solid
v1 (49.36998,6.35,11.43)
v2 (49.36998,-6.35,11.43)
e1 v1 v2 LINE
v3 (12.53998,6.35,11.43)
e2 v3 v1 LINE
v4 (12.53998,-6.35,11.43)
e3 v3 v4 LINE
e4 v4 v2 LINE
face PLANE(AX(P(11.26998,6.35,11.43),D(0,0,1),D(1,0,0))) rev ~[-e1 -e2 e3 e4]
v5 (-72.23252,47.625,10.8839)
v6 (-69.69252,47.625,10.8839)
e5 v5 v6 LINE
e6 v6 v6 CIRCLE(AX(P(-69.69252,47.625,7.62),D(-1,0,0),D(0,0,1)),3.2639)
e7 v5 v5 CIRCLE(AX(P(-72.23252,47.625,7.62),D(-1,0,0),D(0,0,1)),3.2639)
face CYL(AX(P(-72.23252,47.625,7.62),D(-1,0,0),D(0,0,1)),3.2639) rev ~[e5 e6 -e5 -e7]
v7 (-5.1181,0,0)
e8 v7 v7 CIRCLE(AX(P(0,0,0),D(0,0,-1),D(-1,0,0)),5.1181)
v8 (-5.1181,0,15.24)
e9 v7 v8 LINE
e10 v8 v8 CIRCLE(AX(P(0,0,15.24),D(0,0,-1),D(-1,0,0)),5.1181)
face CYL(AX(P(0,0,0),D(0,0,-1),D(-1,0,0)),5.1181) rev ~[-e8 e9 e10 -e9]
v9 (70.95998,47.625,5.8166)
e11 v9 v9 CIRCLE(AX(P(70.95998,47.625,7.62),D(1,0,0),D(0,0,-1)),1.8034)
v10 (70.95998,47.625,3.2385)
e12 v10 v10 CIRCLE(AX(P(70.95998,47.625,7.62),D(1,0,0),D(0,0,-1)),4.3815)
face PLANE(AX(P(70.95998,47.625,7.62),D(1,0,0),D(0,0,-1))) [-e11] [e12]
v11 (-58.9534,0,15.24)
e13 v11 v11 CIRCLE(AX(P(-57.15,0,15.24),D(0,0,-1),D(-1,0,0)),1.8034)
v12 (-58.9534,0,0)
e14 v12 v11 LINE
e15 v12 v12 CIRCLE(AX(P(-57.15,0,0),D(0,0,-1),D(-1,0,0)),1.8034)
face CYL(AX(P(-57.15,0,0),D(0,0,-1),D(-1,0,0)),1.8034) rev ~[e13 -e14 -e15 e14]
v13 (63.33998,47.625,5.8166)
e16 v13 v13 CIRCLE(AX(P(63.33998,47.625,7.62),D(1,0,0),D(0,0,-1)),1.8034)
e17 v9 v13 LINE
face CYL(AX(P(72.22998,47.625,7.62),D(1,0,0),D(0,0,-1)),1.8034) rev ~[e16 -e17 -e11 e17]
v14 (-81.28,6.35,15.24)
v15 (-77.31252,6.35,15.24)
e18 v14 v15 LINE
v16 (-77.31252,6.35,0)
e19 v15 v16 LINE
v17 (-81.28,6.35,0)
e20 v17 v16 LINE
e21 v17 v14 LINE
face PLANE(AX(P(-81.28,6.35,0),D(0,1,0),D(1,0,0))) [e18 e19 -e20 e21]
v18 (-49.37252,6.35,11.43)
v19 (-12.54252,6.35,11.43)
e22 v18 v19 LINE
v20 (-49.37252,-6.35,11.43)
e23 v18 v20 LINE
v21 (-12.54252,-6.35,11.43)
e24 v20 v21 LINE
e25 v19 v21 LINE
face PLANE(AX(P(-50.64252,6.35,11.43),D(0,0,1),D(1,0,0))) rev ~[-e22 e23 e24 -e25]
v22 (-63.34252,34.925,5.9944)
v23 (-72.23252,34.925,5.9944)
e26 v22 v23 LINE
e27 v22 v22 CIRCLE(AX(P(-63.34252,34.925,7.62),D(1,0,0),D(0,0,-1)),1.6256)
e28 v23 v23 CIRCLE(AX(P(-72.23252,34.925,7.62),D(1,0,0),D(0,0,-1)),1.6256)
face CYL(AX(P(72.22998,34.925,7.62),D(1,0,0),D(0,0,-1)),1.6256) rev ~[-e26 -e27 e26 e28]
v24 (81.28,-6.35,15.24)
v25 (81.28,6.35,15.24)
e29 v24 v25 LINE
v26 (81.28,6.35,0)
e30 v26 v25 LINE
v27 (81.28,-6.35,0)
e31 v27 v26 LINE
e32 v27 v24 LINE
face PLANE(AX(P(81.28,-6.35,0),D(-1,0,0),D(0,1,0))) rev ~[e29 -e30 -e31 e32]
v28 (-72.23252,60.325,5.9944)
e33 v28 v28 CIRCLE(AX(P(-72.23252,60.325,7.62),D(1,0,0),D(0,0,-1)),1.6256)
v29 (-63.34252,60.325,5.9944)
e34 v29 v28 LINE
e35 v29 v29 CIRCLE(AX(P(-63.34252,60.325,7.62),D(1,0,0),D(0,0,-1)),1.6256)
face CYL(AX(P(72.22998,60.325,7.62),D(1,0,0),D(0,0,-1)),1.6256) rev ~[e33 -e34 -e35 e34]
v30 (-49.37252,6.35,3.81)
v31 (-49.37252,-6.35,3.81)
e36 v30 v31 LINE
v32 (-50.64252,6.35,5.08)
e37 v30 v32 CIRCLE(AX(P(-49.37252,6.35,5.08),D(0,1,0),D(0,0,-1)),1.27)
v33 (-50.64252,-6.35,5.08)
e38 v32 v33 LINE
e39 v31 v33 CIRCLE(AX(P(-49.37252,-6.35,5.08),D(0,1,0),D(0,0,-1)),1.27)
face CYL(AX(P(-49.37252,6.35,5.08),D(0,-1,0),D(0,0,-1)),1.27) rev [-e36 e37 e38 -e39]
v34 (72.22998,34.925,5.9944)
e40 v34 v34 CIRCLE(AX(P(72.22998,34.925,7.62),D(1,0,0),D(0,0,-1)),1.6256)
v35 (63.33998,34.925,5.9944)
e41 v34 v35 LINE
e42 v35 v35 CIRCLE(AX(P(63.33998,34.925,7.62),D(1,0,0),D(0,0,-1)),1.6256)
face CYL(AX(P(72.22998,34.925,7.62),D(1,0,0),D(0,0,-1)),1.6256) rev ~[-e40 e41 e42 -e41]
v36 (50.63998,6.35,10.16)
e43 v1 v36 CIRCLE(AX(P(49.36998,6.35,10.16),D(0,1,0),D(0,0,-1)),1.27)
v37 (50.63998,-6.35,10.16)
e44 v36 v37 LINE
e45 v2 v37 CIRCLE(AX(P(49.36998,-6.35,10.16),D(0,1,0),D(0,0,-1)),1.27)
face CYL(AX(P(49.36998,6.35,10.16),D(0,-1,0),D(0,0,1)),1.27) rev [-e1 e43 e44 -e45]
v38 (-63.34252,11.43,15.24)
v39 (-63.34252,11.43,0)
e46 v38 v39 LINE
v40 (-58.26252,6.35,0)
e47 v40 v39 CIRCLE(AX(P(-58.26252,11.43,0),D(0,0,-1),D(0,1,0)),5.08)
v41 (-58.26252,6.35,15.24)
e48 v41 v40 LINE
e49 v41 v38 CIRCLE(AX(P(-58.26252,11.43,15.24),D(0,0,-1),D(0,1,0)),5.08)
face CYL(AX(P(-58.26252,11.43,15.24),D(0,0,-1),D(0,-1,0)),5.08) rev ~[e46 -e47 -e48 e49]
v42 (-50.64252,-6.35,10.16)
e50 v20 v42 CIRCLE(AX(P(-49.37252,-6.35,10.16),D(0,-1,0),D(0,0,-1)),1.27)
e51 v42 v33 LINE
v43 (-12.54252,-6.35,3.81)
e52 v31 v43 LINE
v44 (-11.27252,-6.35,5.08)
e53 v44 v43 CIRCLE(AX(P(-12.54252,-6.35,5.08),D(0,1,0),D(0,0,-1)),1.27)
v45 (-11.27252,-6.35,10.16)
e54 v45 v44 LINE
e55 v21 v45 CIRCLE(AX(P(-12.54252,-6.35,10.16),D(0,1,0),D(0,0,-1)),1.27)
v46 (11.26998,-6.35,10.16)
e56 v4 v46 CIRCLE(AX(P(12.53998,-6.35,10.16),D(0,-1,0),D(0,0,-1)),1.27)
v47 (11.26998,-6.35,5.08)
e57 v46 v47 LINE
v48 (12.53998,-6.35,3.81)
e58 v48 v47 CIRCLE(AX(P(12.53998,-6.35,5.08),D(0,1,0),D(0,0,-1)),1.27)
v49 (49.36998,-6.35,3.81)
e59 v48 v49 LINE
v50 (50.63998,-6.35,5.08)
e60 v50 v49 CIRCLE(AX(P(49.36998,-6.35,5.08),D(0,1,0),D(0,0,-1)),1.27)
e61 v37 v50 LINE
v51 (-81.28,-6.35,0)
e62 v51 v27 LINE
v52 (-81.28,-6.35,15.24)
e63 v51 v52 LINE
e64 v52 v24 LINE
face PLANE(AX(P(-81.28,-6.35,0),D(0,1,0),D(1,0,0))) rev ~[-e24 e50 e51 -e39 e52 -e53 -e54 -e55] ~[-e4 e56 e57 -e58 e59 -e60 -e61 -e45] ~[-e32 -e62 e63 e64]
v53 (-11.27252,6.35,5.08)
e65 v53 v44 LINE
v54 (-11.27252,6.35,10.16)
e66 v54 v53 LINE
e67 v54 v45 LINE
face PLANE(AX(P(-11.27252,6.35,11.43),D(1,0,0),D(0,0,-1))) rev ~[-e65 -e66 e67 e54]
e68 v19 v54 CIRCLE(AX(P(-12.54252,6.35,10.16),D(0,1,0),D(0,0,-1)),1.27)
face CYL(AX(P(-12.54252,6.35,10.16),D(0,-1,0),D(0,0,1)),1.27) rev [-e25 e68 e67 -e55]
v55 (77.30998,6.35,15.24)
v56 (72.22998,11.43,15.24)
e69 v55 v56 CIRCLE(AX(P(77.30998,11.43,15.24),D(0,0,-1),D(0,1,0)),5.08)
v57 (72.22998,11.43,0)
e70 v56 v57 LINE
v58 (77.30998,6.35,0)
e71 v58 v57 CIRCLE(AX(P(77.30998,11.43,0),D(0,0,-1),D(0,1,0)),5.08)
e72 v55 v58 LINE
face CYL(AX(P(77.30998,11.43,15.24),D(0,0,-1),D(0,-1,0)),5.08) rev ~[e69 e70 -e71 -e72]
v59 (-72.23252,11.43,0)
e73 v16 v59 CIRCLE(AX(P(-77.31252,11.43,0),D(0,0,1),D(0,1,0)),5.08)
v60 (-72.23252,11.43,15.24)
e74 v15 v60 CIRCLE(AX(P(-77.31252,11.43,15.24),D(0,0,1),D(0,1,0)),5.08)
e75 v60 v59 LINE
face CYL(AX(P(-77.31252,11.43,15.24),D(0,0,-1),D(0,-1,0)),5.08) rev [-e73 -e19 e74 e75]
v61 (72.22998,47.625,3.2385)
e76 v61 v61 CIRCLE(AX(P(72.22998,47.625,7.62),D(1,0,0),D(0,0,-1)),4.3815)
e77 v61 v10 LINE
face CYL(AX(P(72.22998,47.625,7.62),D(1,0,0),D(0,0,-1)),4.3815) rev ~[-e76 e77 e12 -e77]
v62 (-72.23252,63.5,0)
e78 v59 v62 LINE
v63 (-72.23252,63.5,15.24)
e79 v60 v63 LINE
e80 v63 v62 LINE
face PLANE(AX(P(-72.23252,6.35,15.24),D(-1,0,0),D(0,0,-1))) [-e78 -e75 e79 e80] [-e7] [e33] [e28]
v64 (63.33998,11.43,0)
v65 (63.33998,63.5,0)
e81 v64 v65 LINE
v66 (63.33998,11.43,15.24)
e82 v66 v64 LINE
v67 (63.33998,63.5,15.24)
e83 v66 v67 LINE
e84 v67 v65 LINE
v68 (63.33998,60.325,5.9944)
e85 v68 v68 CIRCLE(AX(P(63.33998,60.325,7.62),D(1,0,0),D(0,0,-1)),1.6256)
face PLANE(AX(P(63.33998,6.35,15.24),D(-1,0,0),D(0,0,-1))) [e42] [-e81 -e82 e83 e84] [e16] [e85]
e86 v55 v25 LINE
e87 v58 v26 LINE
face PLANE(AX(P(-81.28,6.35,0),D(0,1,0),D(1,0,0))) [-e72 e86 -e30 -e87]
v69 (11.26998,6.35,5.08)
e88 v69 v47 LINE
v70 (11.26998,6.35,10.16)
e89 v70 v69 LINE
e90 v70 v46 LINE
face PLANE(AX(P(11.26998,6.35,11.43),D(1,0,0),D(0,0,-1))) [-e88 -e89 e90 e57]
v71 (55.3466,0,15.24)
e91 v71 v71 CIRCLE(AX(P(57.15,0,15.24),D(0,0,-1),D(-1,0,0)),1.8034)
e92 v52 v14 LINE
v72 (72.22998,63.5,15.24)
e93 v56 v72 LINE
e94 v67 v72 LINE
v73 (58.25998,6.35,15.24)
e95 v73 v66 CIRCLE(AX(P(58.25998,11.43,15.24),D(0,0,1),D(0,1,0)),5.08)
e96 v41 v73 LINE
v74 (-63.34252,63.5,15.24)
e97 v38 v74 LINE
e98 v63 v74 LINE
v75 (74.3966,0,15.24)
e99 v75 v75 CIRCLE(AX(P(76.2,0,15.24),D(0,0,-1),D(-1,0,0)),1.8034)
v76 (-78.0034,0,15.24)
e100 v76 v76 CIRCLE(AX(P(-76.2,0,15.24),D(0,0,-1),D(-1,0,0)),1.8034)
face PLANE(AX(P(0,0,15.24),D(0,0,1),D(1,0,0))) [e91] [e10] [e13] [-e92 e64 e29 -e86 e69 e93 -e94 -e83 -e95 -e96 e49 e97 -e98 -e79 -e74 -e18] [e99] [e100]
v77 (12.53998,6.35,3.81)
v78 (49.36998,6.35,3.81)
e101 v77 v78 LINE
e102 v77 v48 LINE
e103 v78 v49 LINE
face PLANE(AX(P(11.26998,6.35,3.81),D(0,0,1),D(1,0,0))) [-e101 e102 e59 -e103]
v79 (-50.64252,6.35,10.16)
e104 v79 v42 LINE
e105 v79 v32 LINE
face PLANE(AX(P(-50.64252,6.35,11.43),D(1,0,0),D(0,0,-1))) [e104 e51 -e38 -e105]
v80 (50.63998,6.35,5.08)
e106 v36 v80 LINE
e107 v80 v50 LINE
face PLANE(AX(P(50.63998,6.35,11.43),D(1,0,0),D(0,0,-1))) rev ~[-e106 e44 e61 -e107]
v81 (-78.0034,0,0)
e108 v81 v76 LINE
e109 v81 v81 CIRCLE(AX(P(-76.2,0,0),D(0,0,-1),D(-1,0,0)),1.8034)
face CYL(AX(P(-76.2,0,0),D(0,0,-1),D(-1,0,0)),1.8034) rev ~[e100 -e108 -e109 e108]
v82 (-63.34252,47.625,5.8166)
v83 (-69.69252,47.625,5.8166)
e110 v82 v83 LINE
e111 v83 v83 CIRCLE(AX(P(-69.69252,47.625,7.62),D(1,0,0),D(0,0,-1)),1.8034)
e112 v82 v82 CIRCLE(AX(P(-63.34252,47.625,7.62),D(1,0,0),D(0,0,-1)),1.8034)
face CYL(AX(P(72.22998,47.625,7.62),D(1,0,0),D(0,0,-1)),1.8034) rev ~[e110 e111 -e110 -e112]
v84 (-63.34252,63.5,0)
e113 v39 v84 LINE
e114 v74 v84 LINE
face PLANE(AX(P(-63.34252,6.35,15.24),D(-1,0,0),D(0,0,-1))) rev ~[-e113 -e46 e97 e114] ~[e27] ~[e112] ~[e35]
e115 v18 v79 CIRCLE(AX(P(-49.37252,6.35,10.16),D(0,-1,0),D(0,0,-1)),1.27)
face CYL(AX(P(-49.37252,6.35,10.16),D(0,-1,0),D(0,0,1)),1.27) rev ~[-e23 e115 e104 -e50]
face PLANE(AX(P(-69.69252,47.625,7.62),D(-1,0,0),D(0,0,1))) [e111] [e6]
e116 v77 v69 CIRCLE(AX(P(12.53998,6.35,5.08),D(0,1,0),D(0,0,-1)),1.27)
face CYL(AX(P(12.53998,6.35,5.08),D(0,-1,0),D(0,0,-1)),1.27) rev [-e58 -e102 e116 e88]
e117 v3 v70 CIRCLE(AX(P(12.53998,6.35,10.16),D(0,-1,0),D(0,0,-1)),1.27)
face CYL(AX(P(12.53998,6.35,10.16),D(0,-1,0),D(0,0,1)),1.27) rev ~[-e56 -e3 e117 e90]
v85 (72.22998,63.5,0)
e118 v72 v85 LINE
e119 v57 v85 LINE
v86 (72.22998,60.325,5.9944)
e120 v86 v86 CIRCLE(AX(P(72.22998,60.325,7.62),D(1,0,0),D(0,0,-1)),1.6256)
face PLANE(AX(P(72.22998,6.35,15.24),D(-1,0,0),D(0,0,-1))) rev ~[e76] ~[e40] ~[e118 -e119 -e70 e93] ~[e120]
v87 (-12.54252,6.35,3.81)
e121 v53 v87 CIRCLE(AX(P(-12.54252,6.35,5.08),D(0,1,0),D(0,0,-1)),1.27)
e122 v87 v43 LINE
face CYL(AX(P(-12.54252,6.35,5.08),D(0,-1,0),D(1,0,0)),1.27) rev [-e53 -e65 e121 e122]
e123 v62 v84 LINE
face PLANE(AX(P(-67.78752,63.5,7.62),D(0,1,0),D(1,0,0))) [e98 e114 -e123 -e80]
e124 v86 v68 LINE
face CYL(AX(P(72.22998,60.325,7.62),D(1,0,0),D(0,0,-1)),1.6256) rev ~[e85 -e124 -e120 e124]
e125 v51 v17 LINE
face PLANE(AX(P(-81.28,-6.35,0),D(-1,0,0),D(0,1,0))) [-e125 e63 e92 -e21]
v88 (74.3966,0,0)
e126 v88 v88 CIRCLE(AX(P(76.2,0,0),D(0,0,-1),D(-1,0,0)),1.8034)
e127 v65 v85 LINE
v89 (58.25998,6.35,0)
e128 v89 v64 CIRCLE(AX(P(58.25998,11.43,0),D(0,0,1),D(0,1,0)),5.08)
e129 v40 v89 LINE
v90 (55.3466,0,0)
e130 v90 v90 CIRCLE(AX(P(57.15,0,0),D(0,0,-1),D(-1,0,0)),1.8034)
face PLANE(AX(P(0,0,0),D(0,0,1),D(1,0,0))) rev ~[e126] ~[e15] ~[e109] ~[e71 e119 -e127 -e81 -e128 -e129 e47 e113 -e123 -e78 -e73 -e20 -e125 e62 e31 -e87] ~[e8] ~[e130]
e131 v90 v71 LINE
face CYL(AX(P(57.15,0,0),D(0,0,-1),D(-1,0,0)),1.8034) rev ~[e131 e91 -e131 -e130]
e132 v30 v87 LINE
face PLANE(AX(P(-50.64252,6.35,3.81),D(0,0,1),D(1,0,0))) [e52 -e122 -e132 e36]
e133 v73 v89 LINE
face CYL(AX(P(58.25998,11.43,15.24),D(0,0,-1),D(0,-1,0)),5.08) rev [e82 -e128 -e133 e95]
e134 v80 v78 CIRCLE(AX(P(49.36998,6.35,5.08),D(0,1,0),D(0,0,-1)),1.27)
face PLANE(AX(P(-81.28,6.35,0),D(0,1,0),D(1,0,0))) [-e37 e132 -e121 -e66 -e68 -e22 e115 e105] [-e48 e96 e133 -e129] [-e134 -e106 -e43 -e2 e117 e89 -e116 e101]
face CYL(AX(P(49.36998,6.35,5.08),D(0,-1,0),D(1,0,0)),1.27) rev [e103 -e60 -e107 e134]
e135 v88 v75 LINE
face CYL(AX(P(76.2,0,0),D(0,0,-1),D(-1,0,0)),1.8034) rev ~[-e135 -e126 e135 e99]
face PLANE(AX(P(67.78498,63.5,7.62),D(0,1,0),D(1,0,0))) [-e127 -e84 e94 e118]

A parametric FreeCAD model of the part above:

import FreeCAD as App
import Part
import Sketcher
from FreeCAD import Vector
Q = App.Units.Quantity


def edges_at(feature, points):
    """Names of the edges that pass closest to the given points."""
    edges = feature.Shape.Edges
    near = lambda p: min(range(len(edges)), key=lambda i: edges[i].distToShape(Part.Vertex(*p))[0])
    return sorted({f"Edge{near(p) + 1}" for p in points})


def add_polygon(sketch, points):
    """Adds a closed chain of lines whose ends are joined by coincident constraints."""
    first, n = sketch.GeometryCount, len(points)
    for a, b in zip(points, points[1:] + points[:1]):
        sketch.addGeometry(Part.LineSegment(App.Vector(*a, 0), App.Vector(*b, 0)), False)
    for i in range(n):
        sketch.addConstraint(Sketcher.Constraint("Coincident", first + i, 2, first + (i + 1) % n, 1))

doc = App.newDocument("Part")
body = doc.addObject("PartDesign::Body", "Body")

# Sketch on XY plane
sketch1 = body.newObject("Sketcher::SketchObject", "Sketch")
sketch1.AttachmentSupport = (doc.getObject("XY_Plane"), [""])
sketch1.MapMode = "FlatFace"
add_polygon(sketch1, [(-81, 6), (-81, -6), (81, -6), (81, 6)])  # lines 0-3
sketch1.addConstraint([
    Sketcher.Constraint("Vertical", 0),
    Sketcher.Constraint("Horizontal", 1),
    Sketcher.Constraint("Vertical", 2),
    Sketcher.Constraint("Horizontal", 3),
    Sketcher.Constraint("Symmetric", 0, 2, 2, 2, -1, 1),
    Sketcher.Constraint("DistanceX", 1, 1, 1, 2, Q("6.4 in")),
    Sketcher.Constraint("DistanceY", 0, 2, 0, 1, Q("0.5 in")),
])
pad1 = body.newObject("PartDesign::Pad", "Pad")
pad1.Profile = sketch1
pad1.Length = Q("0.6 in")

# Sketch on XY plane
sketch2 = body.newObject("Sketcher::SketchObject", "Sketch001")
sketch2.AttachmentSupport = (doc.getObject("XY_Plane"), [""])
sketch2.MapMode = "FlatFace"
sketch2.addGeometry([
    Part.Circle(Vector(76.2, 0, 0), Vector(0, 0, 1), 1.8),
    Part.Circle(Vector(57.1, 0, 0), Vector(0, 0, 1), 1.8),
    Part.Circle(Vector(-57.1, 0, 0), Vector(0, 0, 1), 1.8),
    Part.Circle(Vector(-76.2, 0, 0), Vector(0, 0, 1), 1.8),
], False)
sketch2.addConstraint([
    Sketcher.Constraint("Equal", 0, 1),
    Sketcher.Constraint("Equal", 1, 2),
    Sketcher.Constraint("Equal", 2, 3),
    Sketcher.Constraint("Symmetric", 1, 3, 2, 3, -1, 1),
    Sketcher.Constraint("Symmetric", 0, 3, 3, 3, -1, 1),
    Sketcher.Constraint("PointOnObject", 0, 3, -1),
    Sketcher.Constraint("PointOnObject", 1, 3, -1),
    Sketcher.Constraint("Diameter", 0, Q("0.142 in")),
    Sketcher.Constraint("DistanceX", -1, 1, 0, 3, Q("3 in")),
    Sketcher.Constraint("DistanceX", 2, 3, 1, 3, Q("4.5 in")),
])
pocket1 = body.newObject("PartDesign::Pocket", "Pocket")
pocket1.Profile = sketch2
pocket1.Length = Q("0.6 in")
pocket1.Reversed = True

# Sketch on XY plane
sketch3 = body.newObject("Sketcher::SketchObject", "Sketch002")
sketch3.AttachmentSupport = (doc.getObject("XY_Plane"), [""])
sketch3.MapMode = "FlatFace"
sketch3.addGeometry(Part.Circle(Vector(0, 0, 0), Vector(0, 0, 1), 5), False)
sketch3.addConstraint([
    Sketcher.Constraint("Coincident", 0, 3, -1, 1),
    Sketcher.Constraint("Diameter", 0, Q("0.403 in")),
])
pocket2 = body.newObject("PartDesign::Pocket", "Pocket001")
pocket2.Profile = sketch3
pocket2.Length = Q("0.6 in")
pocket2.Reversed = True

# Sketch on XZ plane
sketch4 = body.newObject("Sketcher::SketchObject", "Sketch003")
sketch4.AttachmentSupport = (doc.getObject("XZ_Plane"), [""])
sketch4.MapMode = "FlatFace"
sketch4.AttachmentOffset = App.Placement(Vector(0, 0, -0.25 * 25.4), App.Rotation())
add_polygon(sketch4, [(63, 0), (63, 15), (72, 15), (72, 0)])  # lines 0-3
add_polygon(sketch4, [(-72, 0), (-72, 15), (-63, 15), (-63, 0)])  # lines 4-7
sketch4.addConstraint([
    Sketcher.Constraint("Vertical", 0),
    Sketcher.Constraint("Horizontal", 1),
    Sketcher.Constraint("Vertical", 2),
    Sketcher.Constraint("Horizontal", 3),
    Sketcher.Constraint("Vertical", 4),
    Sketcher.Constraint("Horizontal", 5),
    Sketcher.Constraint("Vertical", 6),
    Sketcher.Constraint("Horizontal", 7),
    Sketcher.Constraint("PointOnObject", 2, 2, -1),
    Sketcher.Constraint("PointOnObject", 6, 2, -1),
    Sketcher.Constraint("Horizontal", 1, 2, 4, 2),
    Sketcher.Constraint("Equal", 3, 5),
    Sketcher.Constraint("DistanceY", 0, 1, 0, 2, Q("0.6 in")),
    Sketcher.Constraint("DistanceX", 1, 1, 1, 2, Q("0.35 in")),
    Sketcher.Constraint("DistanceX", 4, 2, 1, 2, Q("5.6875 in")),
    Sketcher.Constraint("DistanceX", -1, 1, 0, 2, Q("2.4937 in")),
])
pad2 = body.newObject("PartDesign::Pad", "Pad001")
pad2.Profile = sketch4
pad2.Length = Q("2.25 in")
pad2.Reversed = True
doc.recompute()

fillet = body.newObject("PartDesign::Fillet", "Fillet")
fillet.Base = (pad2, edges_at(pad2, [
    (72.23, 6.35, 7.62),
    (63.34, 6.35, 7.62),
    (-63.343, 6.35, 7.62),
    (-72.233, 6.35, 7.62),
]))
fillet.Radius = Q("0.2 in")

# Sketch on YZ plane
sketch5 = body.newObject("Sketcher::SketchObject", "Sketch004")
sketch5.AttachmentSupport = (doc.getObject("YZ_Plane"), [""])
sketch5.MapMode = "FlatFace"
sketch5.AttachmentOffset = App.Placement(Vector(0, 0, 2.8437 * 25.4), App.Rotation())
sketch5.addGeometry([
    Part.Circle(Vector(60.3, 7.6, 0), Vector(0, 0, 1), 1.6),
    Part.Circle(Vector(34.9, 7.6, 0), Vector(0, 0, 1), 1.6),
    Part.Circle(Vector(47.6, 7.6, 0), Vector(0, 0, 1), 1.8),
], False)
sketch5.addConstraint([
    Sketcher.Constraint("Equal", 0, 1),
    Sketcher.Constraint("Horizontal", 0, 3, 1, 3),
    Sketcher.Constraint("Horizontal", 1, 3, 2, 3),
    Sketcher.Constraint("Diameter", 0, Q("0.128 in")),
    Sketcher.Constraint("Diameter", 2, Q("0.142 in")),
    Sketcher.Constraint("DistanceX", 1, 3, 0, 3, Q("1 in")),
    Sketcher.Constraint("DistanceY", -1, 1, 0, 3, Q("0.3 in")),
    Sketcher.Constraint("DistanceX", 2, 3, 0, 3, Q("0.5 in")),
    Sketcher.Constraint("DistanceX", -1, 1, 0, 3, Q("2.375 in")),
])
pocket3 = body.newObject("PartDesign::Pocket", "Pocket002")
pocket3.Profile = sketch5
pocket3.Length = Q("6 in")

# Sketch on YZ plane
sketch6 = body.newObject("Sketcher::SketchObject", "Sketch005")
sketch6.AttachmentSupport = (doc.getObject("YZ_Plane"), [""])
sketch6.MapMode = "FlatFace"
sketch6.AttachmentOffset = App.Placement(Vector(0, 0, 2.8437 * 25.4), App.Rotation())
sketch6.addGeometry(Part.Circle(Vector(47.6, 7.6, 0), Vector(0, 0, 1), 4.4), False)
sketch6.addConstraint([
    Sketcher.Constraint("Diameter", 0, Q("0.345 in")),
    Sketcher.Constraint("DistanceY", -1, 1, 0, 3, Q("0.3 in")),
    Sketcher.Constraint("DistanceX", -1, 1, 0, 3, Q("1.875 in")),
])
pocket4 = body.newObject("PartDesign::Pocket", "Pocket003")
pocket4.Profile = sketch6
pocket4.Length = Q("0.05 in")

# Sketch on YZ plane
sketch7 = body.newObject("Sketcher::SketchObject", "Sketch006")
sketch7.AttachmentSupport = (doc.getObject("YZ_Plane"), [""])
sketch7.MapMode = "FlatFace"
sketch7.AttachmentOffset = App.Placement(Vector(0, 0, -2.8438 * 25.4), App.Rotation())
sketch7.addGeometry(Part.Circle(Vector(47.6, 7.6, 0), Vector(0, 0, 1), 3.3), False)
sketch7.addConstraint([
    Sketcher.Constraint("Diameter", 0, Q("0.257 in")),
    Sketcher.Constraint("DistanceY", -1, 1, 0, 3, Q("0.3 in")),
    Sketcher.Constraint("DistanceX", -1, 1, 0, 3, Q("1.875 in")),
])
pocket5 = body.newObject("PartDesign::Pocket", "Pocket004")
pocket5.Profile = sketch7
pocket5.Length = Q("0.1 in")
pocket5.Reversed = True

# Sketch on XZ plane
sketch8 = body.newObject("Sketcher::SketchObject", "Sketch007")
sketch8.AttachmentSupport = (doc.getObject("XZ_Plane"), [""])
sketch8.MapMode = "FlatFace"
sketch8.AttachmentOffset = App.Placement(Vector(0, 0, -0.25 * 25.4), App.Rotation())
add_polygon(sketch8, [(11, 4), (11, 11), (51, 11), (51, 4)])  # lines 0-3
add_polygon(sketch8, [(-51, 4), (-51, 11), (-11, 11), (-11, 4)])  # lines 4-7
sketch8.addConstraint([
    Sketcher.Constraint("Vertical", 0),
    Sketcher.Constraint("Horizontal", 1),
    Sketcher.Constraint("Vertical", 2),
    Sketcher.Constraint("Horizontal", 3),
    Sketcher.Constraint("Vertical", 4),
    Sketcher.Constraint("Horizontal", 5),
    Sketcher.Constraint("Vertical", 6),
    Sketcher.Constraint("Horizontal", 7),
    Sketcher.Constraint("Horizontal", 1, 2, 4, 2),
    Sketcher.Constraint("Horizontal", 3, 2, 6, 2),
    Sketcher.Constraint("Equal", 3, 5),
    Sketcher.Constraint("DistanceY", 0, 1, 0, 2, Q("0.3 in")),
    Sketcher.Constraint("DistanceX", 1, 1, 1, 2, Q("1.55 in")),
    Sketcher.Constraint("DistanceY", -1, 1, 0, 2, Q("0.45 in")),
    Sketcher.Constraint("DistanceX", 4, 2, 0, 2, Q("2.4375 in")),
    Sketcher.Constraint("DistanceX", -1, 1, 0, 2, Q("0.4437 in")),
])
pocket6 = body.newObject("PartDesign::Pocket", "Pocket005")
pocket6.Profile = sketch8
pocket6.Length = Q("1 in")
pocket6.Reversed = True
doc.recompute()

fillet2 = body.newObject("PartDesign::Fillet", "Fillet001")
fillet2.Base = (pocket6, edges_at(pocket6, [
    (11.27, 0, 11.43),
    (11.27, 0, 3.81),
    (50.64, 0, 3.81),
    (50.64, 0, 11.43),
]))
fillet2.Radius = Q("0.05 in")
doc.recompute()

fillet3 = body.newObject("PartDesign::Fillet", "Fillet002")
fillet3.Base = (fillet2, edges_at(fillet2, [
    (-50.643, 0, 11.43),
    (-50.643, 0, 3.81),
    (-11.273, 0, 3.81),
    (-11.273, 0, 11.43),
]))
fillet3.Radius = Q("0.05 in")

doc.recompute()
